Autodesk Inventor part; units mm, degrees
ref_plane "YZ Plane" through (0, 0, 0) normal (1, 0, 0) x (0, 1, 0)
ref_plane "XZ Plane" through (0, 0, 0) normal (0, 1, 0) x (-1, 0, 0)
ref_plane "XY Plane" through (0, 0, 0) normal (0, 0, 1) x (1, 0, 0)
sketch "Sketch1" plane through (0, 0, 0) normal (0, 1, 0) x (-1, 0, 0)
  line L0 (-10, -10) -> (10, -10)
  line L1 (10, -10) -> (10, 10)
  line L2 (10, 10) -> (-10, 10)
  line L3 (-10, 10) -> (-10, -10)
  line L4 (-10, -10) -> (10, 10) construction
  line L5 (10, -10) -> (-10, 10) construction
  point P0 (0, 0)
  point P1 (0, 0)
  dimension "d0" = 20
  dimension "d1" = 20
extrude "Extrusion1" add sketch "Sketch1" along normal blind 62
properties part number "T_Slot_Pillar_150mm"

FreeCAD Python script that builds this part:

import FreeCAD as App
import Part
import Sketcher
from FreeCAD import Vector


def add_polygon(sketch, points):
    """Adds a closed chain of lines whose ends are joined by coincident constraints."""
    first, n = sketch.GeometryCount, len(points)
    for a, b in zip(points, points[1:] + points[:1]):
        sketch.addGeometry(Part.LineSegment(App.Vector(*a, 0), App.Vector(*b, 0)), False)
    for i in range(n):
        sketch.addConstraint(Sketcher.Constraint("Coincident", first + i, 2, first + (i + 1) % n, 1))

doc = App.newDocument("Part")
body = doc.addObject("PartDesign::Body", "Body")

# Sketch on XZ plane
sketch1 = body.newObject("Sketcher::SketchObject", "Sketch")
sketch1.AttachmentSupport = (doc.getObject("XZ_Plane"), [""])
sketch1.MapMode = "FlatFace"
add_polygon(sketch1, [(10, 10), (10, -10), (-10, -10), (-10, 10)])  # lines 0-3
sketch1.addConstraint([
    Sketcher.Constraint("Vertical", 0),
    Sketcher.Constraint("Horizontal", 1),
    Sketcher.Constraint("Vertical", 2),
    Sketcher.Constraint("Horizontal", 3),
    Sketcher.Constraint("Symmetric", 0, 2, 2, 2, -1, 1),
    Sketcher.Constraint("Equal", 3, 0),
    Sketcher.Constraint("DistanceX", 1, 2, 1, 1, 20.0),
])
pad1 = body.newObject("PartDesign::Pad", "Pad")
pad1.Profile = sketch1
pad1.Length = 62
pad1.Reversed = True

doc.recompute()
